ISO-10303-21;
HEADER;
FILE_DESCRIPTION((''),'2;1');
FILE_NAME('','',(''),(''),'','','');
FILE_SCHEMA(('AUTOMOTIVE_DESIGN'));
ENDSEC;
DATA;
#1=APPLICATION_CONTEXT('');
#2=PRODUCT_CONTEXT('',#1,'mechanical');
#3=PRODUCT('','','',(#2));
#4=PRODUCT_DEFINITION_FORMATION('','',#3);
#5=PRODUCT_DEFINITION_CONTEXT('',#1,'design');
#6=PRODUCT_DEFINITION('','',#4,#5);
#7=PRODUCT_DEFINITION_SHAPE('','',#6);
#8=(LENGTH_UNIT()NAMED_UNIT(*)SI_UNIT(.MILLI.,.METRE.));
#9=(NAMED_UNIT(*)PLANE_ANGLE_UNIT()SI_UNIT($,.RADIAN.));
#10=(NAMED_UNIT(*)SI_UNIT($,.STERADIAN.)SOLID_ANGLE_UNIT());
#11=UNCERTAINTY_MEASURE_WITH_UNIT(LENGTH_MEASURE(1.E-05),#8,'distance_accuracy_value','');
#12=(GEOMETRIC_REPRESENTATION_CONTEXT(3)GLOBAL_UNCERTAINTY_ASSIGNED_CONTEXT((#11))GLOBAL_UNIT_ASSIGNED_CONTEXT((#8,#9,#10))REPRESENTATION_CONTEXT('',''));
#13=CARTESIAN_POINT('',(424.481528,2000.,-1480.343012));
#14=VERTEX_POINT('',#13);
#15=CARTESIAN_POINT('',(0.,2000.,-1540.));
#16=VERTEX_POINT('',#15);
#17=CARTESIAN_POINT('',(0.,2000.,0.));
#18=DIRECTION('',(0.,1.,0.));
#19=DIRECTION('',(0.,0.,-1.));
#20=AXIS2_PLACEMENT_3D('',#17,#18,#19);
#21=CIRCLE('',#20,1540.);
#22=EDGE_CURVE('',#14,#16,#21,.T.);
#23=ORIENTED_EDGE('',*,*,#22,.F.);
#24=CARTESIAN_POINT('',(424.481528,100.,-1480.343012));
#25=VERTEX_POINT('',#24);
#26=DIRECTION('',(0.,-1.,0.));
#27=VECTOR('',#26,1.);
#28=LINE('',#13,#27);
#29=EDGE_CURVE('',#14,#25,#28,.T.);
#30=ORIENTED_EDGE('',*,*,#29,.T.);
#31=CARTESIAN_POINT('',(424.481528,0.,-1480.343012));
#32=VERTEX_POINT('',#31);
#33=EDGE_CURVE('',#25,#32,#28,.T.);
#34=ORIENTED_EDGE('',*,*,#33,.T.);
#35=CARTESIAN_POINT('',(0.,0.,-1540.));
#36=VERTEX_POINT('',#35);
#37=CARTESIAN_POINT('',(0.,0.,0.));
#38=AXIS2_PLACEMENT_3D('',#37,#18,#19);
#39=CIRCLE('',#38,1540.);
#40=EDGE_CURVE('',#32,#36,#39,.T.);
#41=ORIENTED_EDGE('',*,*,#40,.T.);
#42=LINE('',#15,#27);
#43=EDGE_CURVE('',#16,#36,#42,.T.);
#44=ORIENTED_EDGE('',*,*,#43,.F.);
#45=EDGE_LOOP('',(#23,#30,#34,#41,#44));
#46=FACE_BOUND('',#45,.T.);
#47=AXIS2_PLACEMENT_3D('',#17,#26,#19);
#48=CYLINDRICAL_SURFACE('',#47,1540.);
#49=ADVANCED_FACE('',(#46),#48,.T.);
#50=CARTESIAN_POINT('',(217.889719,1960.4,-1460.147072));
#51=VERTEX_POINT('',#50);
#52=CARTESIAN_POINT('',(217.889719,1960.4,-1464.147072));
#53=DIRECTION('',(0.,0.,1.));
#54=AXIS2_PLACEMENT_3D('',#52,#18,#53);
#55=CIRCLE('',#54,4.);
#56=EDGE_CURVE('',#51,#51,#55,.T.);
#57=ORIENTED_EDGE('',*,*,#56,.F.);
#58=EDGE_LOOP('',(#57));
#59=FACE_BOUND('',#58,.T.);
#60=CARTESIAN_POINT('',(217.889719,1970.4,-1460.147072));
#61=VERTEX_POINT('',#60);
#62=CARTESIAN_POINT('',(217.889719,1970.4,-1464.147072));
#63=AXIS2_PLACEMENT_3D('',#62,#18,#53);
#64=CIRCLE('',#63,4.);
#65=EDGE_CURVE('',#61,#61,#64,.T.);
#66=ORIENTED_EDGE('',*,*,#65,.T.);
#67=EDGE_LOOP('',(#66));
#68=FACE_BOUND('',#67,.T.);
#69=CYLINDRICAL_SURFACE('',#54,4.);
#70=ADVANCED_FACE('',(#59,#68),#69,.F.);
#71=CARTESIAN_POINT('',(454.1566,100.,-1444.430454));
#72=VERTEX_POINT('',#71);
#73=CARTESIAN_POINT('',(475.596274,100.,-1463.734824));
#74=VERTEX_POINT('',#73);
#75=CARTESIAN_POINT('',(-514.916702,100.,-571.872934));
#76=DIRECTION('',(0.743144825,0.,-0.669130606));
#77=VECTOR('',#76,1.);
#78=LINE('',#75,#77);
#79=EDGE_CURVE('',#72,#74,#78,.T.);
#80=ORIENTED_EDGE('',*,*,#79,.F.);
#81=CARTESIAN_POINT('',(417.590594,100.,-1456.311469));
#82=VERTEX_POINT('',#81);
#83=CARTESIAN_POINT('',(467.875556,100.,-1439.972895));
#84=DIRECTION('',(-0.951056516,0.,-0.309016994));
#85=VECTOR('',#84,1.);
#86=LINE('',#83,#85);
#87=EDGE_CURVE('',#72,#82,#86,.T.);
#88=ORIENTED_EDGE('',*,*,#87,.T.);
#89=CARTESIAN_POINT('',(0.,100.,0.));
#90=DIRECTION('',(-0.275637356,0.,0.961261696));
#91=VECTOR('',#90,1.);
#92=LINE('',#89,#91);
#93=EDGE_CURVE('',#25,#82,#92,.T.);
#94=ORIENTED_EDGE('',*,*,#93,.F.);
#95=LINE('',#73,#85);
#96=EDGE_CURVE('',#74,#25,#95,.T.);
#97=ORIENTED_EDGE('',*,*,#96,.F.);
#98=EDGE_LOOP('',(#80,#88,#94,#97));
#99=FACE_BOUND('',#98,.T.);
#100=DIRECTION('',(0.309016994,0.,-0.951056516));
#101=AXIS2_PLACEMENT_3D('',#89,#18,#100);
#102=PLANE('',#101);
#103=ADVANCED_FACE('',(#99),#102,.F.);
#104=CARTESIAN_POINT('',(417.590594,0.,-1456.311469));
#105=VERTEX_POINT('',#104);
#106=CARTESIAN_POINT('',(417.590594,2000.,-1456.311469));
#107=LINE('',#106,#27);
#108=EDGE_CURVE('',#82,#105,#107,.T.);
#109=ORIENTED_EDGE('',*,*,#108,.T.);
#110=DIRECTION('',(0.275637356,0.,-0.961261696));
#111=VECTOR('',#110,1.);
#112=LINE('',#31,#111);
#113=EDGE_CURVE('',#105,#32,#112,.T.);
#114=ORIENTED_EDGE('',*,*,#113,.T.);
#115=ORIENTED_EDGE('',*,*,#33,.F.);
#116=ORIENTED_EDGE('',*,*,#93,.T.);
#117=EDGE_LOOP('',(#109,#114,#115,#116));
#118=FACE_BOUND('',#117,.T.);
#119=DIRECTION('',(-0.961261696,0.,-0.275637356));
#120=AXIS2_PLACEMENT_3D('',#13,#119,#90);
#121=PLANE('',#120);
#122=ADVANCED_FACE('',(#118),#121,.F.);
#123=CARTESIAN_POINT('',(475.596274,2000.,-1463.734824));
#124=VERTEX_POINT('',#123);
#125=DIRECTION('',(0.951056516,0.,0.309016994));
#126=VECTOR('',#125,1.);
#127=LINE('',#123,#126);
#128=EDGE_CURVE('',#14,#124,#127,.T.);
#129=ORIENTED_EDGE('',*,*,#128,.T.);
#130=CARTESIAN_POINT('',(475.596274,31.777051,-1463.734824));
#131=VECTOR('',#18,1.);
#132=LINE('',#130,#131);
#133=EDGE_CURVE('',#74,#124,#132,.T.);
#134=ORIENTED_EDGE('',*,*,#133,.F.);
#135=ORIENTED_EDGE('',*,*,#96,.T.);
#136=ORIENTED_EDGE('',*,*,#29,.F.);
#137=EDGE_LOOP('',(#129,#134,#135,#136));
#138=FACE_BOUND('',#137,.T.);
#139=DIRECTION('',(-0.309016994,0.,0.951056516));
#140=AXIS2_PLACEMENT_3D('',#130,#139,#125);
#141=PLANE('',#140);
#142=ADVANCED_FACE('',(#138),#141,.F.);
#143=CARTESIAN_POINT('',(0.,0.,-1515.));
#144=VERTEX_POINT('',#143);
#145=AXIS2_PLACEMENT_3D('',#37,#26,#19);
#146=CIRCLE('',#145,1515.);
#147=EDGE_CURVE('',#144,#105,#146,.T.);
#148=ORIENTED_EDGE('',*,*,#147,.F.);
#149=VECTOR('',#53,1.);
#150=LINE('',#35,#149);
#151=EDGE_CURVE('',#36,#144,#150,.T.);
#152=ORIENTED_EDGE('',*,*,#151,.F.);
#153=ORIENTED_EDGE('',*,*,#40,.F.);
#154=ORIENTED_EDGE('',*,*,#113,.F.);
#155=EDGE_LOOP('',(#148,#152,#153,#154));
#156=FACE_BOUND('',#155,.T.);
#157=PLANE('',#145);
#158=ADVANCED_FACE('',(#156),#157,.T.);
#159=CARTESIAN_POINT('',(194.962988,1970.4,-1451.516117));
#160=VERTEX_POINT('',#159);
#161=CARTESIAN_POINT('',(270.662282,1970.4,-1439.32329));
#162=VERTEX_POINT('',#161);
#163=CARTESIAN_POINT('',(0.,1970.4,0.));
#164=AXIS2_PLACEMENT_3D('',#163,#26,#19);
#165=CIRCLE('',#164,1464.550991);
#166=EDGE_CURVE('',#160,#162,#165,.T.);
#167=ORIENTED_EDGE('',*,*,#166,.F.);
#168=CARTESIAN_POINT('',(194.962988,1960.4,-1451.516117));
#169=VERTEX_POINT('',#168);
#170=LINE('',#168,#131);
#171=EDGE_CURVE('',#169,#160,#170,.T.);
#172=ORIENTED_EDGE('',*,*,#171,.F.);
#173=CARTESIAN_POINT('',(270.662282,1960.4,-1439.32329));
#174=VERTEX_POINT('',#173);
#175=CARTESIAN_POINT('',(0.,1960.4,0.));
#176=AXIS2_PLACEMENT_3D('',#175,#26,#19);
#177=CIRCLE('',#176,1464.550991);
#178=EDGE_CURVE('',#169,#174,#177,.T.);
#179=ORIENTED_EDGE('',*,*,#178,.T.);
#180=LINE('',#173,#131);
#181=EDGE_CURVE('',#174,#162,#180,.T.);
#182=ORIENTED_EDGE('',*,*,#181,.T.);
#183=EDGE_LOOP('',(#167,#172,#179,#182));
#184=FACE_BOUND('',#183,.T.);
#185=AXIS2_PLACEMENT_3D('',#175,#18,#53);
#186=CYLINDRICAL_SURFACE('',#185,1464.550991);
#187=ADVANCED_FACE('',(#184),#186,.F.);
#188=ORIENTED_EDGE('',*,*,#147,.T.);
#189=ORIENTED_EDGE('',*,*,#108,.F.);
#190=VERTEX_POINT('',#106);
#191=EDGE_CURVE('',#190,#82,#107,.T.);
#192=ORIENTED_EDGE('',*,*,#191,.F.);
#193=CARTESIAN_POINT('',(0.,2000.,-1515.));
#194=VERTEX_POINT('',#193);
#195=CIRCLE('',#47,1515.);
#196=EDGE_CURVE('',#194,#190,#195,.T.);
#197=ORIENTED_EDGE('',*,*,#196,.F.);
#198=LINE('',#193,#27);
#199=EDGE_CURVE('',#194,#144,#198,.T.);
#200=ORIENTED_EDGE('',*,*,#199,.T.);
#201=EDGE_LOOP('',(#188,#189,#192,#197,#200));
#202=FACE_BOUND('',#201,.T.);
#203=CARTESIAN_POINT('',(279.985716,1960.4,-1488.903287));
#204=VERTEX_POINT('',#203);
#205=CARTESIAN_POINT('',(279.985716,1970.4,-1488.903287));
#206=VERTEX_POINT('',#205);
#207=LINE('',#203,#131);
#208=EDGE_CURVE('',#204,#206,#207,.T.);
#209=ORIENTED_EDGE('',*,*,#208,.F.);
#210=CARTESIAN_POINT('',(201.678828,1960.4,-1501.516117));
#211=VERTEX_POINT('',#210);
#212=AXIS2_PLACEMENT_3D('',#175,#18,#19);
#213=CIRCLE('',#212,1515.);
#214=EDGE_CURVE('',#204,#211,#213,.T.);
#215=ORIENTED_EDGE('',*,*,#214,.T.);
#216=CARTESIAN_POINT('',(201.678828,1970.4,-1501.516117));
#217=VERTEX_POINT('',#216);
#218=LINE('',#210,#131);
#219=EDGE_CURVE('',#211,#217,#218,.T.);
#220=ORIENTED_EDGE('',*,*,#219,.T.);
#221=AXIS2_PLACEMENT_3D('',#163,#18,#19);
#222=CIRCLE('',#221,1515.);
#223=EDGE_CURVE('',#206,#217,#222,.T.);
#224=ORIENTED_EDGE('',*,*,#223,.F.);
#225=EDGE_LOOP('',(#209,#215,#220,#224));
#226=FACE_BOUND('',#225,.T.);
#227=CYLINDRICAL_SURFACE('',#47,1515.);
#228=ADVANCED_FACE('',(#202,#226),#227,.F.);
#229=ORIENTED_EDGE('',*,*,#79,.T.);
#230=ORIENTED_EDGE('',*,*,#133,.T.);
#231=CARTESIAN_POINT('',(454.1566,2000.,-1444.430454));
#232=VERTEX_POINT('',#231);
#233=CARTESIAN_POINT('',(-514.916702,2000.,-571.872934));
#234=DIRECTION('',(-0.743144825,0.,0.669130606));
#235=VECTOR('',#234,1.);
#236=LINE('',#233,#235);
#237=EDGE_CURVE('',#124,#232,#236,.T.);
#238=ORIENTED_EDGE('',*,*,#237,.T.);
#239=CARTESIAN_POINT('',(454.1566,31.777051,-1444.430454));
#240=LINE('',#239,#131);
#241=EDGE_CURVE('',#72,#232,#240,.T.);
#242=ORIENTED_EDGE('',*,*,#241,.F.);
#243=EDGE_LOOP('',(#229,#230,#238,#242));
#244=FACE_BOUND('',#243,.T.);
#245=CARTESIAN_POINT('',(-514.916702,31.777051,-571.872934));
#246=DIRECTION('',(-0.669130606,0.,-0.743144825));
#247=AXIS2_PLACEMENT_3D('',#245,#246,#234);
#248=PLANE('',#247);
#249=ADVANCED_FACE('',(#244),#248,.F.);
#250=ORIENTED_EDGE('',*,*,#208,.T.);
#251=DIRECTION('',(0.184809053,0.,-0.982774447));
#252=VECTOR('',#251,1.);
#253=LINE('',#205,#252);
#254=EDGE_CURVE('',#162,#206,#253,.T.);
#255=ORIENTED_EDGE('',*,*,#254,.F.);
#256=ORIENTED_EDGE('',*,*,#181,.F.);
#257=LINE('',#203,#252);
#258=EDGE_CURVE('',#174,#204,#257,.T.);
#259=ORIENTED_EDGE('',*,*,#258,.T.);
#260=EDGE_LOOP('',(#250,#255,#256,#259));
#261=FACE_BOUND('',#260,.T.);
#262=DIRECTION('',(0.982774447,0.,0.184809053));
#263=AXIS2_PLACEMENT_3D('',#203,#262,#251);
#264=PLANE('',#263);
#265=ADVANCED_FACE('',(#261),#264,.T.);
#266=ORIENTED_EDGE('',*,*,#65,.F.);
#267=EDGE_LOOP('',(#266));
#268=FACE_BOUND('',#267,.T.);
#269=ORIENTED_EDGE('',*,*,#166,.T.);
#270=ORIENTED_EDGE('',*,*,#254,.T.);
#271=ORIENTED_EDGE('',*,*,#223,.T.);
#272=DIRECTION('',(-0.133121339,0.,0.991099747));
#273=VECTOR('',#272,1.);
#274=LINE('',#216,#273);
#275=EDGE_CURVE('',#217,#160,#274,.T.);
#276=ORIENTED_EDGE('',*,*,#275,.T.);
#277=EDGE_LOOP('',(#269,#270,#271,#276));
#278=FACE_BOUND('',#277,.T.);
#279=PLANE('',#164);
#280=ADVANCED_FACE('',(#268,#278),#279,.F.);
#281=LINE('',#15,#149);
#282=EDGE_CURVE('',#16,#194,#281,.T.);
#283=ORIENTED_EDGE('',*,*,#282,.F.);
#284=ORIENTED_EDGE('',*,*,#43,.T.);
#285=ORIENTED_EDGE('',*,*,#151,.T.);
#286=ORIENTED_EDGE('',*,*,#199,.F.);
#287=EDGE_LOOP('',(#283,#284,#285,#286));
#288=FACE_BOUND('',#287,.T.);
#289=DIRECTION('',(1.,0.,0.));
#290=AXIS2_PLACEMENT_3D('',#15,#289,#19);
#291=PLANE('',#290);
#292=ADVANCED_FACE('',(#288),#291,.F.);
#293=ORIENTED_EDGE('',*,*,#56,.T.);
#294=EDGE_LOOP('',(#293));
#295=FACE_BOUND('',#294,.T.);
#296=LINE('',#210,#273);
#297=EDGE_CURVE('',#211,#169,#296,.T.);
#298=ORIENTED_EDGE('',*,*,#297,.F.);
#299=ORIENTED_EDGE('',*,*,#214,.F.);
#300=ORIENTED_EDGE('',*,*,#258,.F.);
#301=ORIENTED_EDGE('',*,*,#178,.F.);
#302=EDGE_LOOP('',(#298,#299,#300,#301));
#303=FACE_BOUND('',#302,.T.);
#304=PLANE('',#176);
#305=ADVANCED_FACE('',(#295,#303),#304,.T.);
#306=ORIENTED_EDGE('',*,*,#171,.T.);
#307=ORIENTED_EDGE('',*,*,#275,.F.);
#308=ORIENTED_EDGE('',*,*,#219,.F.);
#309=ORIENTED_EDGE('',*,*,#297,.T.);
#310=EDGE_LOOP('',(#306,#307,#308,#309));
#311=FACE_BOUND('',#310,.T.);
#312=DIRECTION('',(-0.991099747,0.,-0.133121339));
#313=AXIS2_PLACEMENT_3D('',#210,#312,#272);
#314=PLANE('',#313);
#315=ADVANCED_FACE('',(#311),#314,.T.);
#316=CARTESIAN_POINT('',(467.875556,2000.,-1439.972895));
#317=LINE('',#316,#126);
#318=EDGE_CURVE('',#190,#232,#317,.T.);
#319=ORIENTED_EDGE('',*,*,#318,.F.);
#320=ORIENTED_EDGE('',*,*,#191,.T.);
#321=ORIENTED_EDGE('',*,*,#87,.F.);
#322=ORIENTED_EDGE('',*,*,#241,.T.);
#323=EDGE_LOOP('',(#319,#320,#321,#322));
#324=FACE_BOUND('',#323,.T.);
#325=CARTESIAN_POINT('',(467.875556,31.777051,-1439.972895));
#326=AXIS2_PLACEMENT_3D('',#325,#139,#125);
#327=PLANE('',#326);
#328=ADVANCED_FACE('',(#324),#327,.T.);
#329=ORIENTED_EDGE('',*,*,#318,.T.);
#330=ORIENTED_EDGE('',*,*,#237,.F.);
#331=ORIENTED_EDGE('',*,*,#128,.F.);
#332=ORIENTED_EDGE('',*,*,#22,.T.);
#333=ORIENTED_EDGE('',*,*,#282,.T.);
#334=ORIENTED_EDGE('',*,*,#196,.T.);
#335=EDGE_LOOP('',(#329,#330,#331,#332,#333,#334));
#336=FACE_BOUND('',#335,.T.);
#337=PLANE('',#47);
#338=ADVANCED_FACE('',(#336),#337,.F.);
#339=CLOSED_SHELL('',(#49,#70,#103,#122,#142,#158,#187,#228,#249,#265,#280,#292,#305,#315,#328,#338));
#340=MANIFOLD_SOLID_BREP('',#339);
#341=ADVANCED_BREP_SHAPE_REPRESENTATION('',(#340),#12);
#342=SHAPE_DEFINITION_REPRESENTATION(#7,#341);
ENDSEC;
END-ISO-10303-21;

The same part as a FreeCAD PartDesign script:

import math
import FreeCAD as App
import Part
import Sketcher
Q = App.Units.Quantity


def add_polygon(sketch, points):
    """Adds a closed chain of lines whose ends are joined by coincident constraints."""
    first, n = sketch.GeometryCount, len(points)
    for a, b in zip(points, points[1:] + points[:1]):
        sketch.addGeometry(Part.LineSegment(App.Vector(*a, 0), App.Vector(*b, 0)), False)
    for i in range(n):
        sketch.addConstraint(Sketcher.Constraint("Coincident", first + i, 2, first + (i + 1) % n, 1))

doc = App.newDocument("Part")
body = doc.addObject("PartDesign::Body", "Body")

sketch1 = body.newObject("Sketcher::SketchObject", "Sketch")
sketch1.AttachmentSupport = (doc.getObject("XZ_Plane"), [""])
sketch1.MapMode = "FlatFace"
sketch1.addGeometry([
    Part.LineSegment(App.Vector(0, -1540, 0), App.Vector(0, -1515, 0)),
    Part.ArcOfCircle(Part.Circle(App.Vector(0, 0, 0), App.Vector(0, 0, 1), 1515), math.radians(-90), math.radians(-74)),
    Part.LineSegment(App.Vector(418, -1456, 0), App.Vector(424, -1480, 0)),
    Part.ArcOfCircle(Part.Circle(App.Vector(0, 0, 0), App.Vector(0, 0, 1), 1540), math.radians(-90), math.radians(-74)),
], False)
sketch1.addConstraint([
    Sketcher.Constraint("Coincident", 0, 2, 1, 1),
    Sketcher.Constraint("Coincident", 1, 2, 2, 1),
    Sketcher.Constraint("Coincident", 2, 2, 3, 2),
    Sketcher.Constraint("Coincident", 3, 1, 0, 1),
    Sketcher.Constraint("Vertical", 0),
    Sketcher.Constraint("Coincident", 1, 3, -1, 1),
    Sketcher.Constraint("Coincident", 3, 3, -1, 1),
    Sketcher.Constraint("PointOnObject", 0, 2, -2),
    Sketcher.Constraint("Radius", 1, Q("1515 mm")),
    Sketcher.Constraint("Radius", 3, Q("1540 mm")),
    Sketcher.Constraint("Angle", 2, Q("-74 deg")),
    Sketcher.Constraint("DistanceY", 2, 2, -1, 1, Q("1480.343012 mm")),
])
pad1 = body.newObject("PartDesign::Pad", "Pad")
pad1.Profile = sketch1
pad1.Length = 2000
pad1.Reversed = True

sketch2 = body.newObject("Sketcher::SketchObject", "Sketch001")
sketch2.AttachmentSupport = (doc.getObject("XZ_Plane"), [""])
sketch2.MapMode = "FlatFace"
sketch2.AttachmentOffset = App.Placement(App.Vector(0, 0, -2000), App.Rotation())
add_polygon(sketch2, [(476, -1464), (424, -1480), (418, -1456), (454, -1444)])
sketch2.addConstraint([
    Sketcher.Constraint("Parallel", 0, 2),
    Sketcher.Constraint("Angle", 0, Q("-162 deg")),
    Sketcher.Constraint("Angle", 1, Q("106 deg")),
    Sketcher.Constraint("Angle", 3, Q("-42 deg")),
    Sketcher.Constraint("Distance", 1, Q("25 mm")),
    Sketcher.Constraint("DistanceX", -1, 1, 2, 2, Q("454.1566 mm")),
    Sketcher.Constraint("DistanceY", 0, 2, -1, 1, Q("1480.343012 mm")),
    Sketcher.Constraint("DistanceX", 0, 2, 2, 2, Q("29.675072 mm")),
])
pad2 = body.newObject("PartDesign::Pad", "Pad001")
pad2.Profile = sketch2
pad2.Length = 1900

sketch3 = body.newObject("Sketcher::SketchObject", "Sketch002")
sketch3.AttachmentSupport = (doc.getObject("XZ_Plane"), [""])
sketch3.MapMode = "FlatFace"
sketch3.AttachmentOffset = App.Placement(App.Vector(0, 0, -1960.4), App.Rotation())
sketch3.addGeometry([
    Part.LineSegment(App.Vector(202, -1502, 0), App.Vector(195, -1452, 0)),
    Part.ArcOfCircle(Part.Circle(App.Vector(0, 0, 0), App.Vector(0, 0, 1), 1465), math.radians(-82.35), math.radians(-79.35)),
    Part.LineSegment(App.Vector(271, -1439, 0), App.Vector(280, -1489, 0)),
    Part.ArcOfCircle(Part.Circle(App.Vector(0, 0, 0), App.Vector(0, 0, 1), 1515), math.radians(-82.35), math.radians(-79.35)),
], False)
sketch3.addConstraint([
    Sketcher.Constraint("Coincident", 0, 2, 1, 1),
    Sketcher.Constraint("Coincident", 1, 2, 2, 1),
    Sketcher.Constraint("Coincident", 2, 2, 3, 2),
    Sketcher.Constraint("Coincident", 3, 1, 0, 1),
    Sketcher.Constraint("Coincident", 1, 3, -1, 1),
    Sketcher.Constraint("Coincident", 3, 3, -1, 1),
    Sketcher.Constraint("Radius", 3, Q("1515.000001 mm")),
    Sketcher.Constraint("DistanceY", 3, 1, 0, 2, Q("50 mm")),
    Sketcher.Constraint("Angle", 0, Q("97.65 deg")),
    Sketcher.Constraint("Angle", 2, Q("-79.35 deg")),
    Sketcher.Constraint("DistanceX", -1, 1, 0, 2, Q("194.962988 mm")),
    Sketcher.Constraint("DistanceY", 2, 2, 0, 2, Q("37.38717 mm")),
])
pad3 = body.newObject("PartDesign::Pad", "Pad002")
pad3.Profile = sketch3
pad3.Length = 10
pad3.Reversed = True

sketch4 = body.newObject("Sketcher::SketchObject", "Sketch003")
sketch4.AttachmentSupport = (doc.getObject("XZ_Plane"), [""])
sketch4.MapMode = "FlatFace"
sketch4.AttachmentOffset = App.Placement(App.Vector(0, 0, -1970.4), App.Rotation())
sketch4.addGeometry(Part.Circle(App.Vector(217.9, -1464.1, 0), App.Vector(0, 0, 1), 4), False)
sketch4.addConstraint([
    Sketcher.Constraint("Diameter", 0, Q("8 mm")),
    Sketcher.Constraint("DistanceX", -1, 1, 0, 3, Q("217.889719 mm")),
    Sketcher.Constraint("DistanceY", 0, 3, -1, 1, Q("1464.147072 mm")),
])
pocket1 = body.newObject("PartDesign::Pocket", "Pocket")
pocket1.Profile = sketch4
pocket1.Length = 10
pocket1.Reversed = True

doc.recompute()
